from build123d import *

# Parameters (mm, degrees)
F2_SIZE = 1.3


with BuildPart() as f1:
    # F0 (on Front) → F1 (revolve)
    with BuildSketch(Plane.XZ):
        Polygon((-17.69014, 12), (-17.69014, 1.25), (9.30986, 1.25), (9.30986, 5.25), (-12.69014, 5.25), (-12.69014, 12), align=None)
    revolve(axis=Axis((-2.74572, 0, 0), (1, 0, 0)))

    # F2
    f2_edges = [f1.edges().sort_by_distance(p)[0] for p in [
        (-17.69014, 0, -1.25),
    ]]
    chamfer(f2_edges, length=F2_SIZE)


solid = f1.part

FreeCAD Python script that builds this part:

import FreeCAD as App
import Part
import Sketcher
Q = App.Units.Quantity


def edges_at(feature, points):
    """Names of the edges that pass closest to the given points."""
    edges = feature.Shape.Edges
    near = lambda p: min(range(len(edges)), key=lambda i: edges[i].distToShape(Part.Vertex(*p))[0])
    return sorted({f"Edge{near(p) + 1}" for p in points})


def add_polygon(sketch, points):
    """Adds a closed chain of lines whose ends are joined by coincident constraints."""
    first, n = sketch.GeometryCount, len(points)
    for a, b in zip(points, points[1:] + points[:1]):
        sketch.addGeometry(Part.LineSegment(App.Vector(*a, 0), App.Vector(*b, 0)), False)
    for i in range(n):
        sketch.addConstraint(Sketcher.Constraint("Coincident", first + i, 2, first + (i + 1) % n, 1))

doc = App.newDocument("Part")
body = doc.addObject("PartDesign::Body", "Body")

sketch1 = doc.addObject("Sketcher::SketchObject", "Sketch")
body.addObject(sketch1)
sketch1.AttachmentSupport = (doc.XZ_Plane, [""])
sketch1.MapMode = "FlatFace"
add_polygon(sketch1, [(-17.7, 12), (-17.7, 1.2), (9.3, 1.2), (9.3, 5.2), (-12.7, 5.2), (-12.7, 12)])
sketch1.addConstraint(Sketcher.Constraint("Vertical", 0))
sketch1.addConstraint(Sketcher.Constraint("Horizontal", 1))
sketch1.addConstraint(Sketcher.Constraint("Vertical", 2))
sketch1.addConstraint(Sketcher.Constraint("Horizontal", 3))
sketch1.addConstraint(Sketcher.Constraint("Vertical", 4))
sketch1.addConstraint(Sketcher.Constraint("Horizontal", 5))
sketch1.addConstraint(Sketcher.Constraint("DistanceX", 1, 1, 1, 2, Q("27 mm")))
sketch1.addConstraint(Sketcher.Constraint("DistanceX", 3, 2, 3, 1, Q("22 mm")))
sketch1.addConstraint(Sketcher.Constraint("DistanceY", 2, 1, 2, 2, Q("4 mm")))
sketch1.addConstraint(Sketcher.Constraint("DistanceY", -1, 1, 4, 2, Q("12 mm")))
sketch1.addConstraint(Sketcher.Constraint("DistanceY", 0, 2, 0, 1, Q("10.75 mm")))
sketch1.addConstraint(Sketcher.Constraint("DistanceX", 0, 2, -1, 1, Q("17.69014 mm")))
revolution = doc.addObject("PartDesign::Revolution", "Revolution")
body.addObject(revolution)
revolution.Profile = sketch1
revolution.ReferenceAxis = (sketch1, ["H_Axis"])
revolution.Angle = 360
doc.recompute()

chamfer = doc.addObject("PartDesign::Chamfer", "Chamfer")
body.addObject(chamfer)
chamfer.Base = (revolution, edges_at(revolution, [(-17.69, 0, -1.25)]))
chamfer.Size = 1.3

doc.recompute()
